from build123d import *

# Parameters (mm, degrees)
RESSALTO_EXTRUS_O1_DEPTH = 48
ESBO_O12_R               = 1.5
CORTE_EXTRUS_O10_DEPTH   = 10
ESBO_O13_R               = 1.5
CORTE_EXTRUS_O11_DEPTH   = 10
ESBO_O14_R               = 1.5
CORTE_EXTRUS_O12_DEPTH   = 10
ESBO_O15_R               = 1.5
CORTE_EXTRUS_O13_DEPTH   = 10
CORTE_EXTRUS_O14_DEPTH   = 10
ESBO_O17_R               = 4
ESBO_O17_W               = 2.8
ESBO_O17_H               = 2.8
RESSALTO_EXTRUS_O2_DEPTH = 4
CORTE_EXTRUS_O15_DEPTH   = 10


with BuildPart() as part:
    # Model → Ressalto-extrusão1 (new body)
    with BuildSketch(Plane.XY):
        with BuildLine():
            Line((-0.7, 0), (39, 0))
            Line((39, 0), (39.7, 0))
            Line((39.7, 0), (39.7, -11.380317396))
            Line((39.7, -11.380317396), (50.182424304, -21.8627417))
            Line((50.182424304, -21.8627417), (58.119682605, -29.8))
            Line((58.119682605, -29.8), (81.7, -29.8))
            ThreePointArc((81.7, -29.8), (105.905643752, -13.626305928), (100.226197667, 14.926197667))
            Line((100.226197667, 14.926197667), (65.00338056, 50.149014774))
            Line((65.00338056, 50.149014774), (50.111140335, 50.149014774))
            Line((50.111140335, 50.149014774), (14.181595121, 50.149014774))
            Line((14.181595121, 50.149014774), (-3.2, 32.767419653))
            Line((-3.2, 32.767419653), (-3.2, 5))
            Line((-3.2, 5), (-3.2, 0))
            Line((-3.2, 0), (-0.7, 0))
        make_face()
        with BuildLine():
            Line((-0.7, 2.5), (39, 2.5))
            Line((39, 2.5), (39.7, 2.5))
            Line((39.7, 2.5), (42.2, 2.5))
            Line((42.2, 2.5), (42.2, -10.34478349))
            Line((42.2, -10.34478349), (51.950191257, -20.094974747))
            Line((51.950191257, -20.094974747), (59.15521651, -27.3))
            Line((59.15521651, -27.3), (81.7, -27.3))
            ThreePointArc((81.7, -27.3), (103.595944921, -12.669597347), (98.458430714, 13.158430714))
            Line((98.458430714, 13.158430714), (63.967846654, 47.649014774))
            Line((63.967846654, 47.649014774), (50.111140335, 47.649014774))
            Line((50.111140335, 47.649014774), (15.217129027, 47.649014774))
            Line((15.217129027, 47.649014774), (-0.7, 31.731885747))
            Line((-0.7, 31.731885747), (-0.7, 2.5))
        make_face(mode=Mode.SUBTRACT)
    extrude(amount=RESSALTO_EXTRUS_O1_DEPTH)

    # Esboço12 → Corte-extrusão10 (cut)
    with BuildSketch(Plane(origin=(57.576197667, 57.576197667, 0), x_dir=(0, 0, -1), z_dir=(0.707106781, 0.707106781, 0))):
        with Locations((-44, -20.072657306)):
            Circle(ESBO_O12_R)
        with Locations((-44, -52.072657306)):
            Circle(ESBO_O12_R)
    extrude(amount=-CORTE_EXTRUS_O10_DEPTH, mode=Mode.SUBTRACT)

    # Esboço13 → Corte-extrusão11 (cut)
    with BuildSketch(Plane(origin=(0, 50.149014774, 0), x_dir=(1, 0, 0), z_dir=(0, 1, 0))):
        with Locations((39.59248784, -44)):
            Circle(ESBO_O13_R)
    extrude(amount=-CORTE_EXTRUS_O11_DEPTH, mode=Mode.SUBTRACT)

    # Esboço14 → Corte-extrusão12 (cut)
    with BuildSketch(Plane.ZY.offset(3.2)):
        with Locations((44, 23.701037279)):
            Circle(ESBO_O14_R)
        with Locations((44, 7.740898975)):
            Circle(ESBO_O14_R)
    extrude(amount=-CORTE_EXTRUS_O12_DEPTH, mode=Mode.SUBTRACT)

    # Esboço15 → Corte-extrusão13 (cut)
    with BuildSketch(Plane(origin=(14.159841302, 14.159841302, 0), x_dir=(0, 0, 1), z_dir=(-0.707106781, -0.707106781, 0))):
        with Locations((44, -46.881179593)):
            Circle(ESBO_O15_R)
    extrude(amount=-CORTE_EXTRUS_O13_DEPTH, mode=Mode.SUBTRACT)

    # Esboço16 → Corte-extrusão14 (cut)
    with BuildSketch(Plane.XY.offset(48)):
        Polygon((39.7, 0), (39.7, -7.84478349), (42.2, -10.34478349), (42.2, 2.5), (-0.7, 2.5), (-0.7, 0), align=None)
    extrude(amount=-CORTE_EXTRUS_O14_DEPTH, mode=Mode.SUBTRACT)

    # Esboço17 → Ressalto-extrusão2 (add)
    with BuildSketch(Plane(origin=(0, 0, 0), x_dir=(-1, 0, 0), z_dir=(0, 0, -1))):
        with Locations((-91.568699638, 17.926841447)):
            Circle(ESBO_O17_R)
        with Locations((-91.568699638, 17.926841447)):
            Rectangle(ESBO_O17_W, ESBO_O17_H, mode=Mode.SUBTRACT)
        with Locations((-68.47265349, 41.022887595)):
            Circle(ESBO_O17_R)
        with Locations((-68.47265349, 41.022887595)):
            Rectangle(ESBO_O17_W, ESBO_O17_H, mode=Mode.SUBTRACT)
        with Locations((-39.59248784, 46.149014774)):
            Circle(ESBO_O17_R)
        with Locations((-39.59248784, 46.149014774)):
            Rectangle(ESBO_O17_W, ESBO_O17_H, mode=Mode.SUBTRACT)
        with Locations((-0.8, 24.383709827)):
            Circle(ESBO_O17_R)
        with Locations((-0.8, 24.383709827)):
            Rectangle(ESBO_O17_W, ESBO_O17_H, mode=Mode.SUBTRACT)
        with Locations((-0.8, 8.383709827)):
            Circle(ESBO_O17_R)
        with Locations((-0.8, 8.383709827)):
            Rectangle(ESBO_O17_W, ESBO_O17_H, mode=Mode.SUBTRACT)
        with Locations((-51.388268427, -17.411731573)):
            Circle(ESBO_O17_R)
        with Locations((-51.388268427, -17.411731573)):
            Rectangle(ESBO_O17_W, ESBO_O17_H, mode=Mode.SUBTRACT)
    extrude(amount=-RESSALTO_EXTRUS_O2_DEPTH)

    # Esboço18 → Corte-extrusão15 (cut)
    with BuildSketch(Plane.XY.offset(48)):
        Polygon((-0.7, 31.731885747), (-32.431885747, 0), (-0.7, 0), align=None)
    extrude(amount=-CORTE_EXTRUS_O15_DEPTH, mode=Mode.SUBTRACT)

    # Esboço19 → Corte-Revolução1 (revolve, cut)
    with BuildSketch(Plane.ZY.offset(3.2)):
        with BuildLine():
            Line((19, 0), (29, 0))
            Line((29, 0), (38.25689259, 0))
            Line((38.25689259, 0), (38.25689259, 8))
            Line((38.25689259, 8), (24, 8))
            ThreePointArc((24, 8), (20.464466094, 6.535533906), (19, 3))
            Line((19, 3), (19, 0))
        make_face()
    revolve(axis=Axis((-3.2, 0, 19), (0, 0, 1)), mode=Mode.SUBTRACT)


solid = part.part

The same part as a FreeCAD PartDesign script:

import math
import FreeCAD as App
import Part
import Sketcher
Q = App.Units.Quantity

doc = App.newDocument("Part")
body = doc.addObject("PartDesign::Body", "Body")

sketch1 = doc.addObject("Sketcher::SketchObject", "Sketch")
body.addObject(sketch1)
sketch1.AttachmentSupport = (doc.XY_Plane, [""])
sketch1.MapMode = "FlatFace"
sketch1.addGeometry([
    Part.LineSegment(App.Vector(40, 0, 0), App.Vector(40, -11, 0)),
    Part.LineSegment(App.Vector(40, -11, 0), App.Vector(50, -22, 0)),
    Part.LineSegment(App.Vector(50, -22, 0), App.Vector(58, -30, 0)),
    Part.LineSegment(App.Vector(58, -30, 0), App.Vector(82, -30, 0)),
    Part.ArcOfCircle(Part.Circle(App.Vector(82, -4, 0), App.Vector(0, 0, 1), 26), math.radians(-90), math.radians(45)),
    Part.LineSegment(App.Vector(100, 15, 0), App.Vector(65, 50, 0)),
    Part.LineSegment(App.Vector(65, 50, 0), App.Vector(14, 50, 0)),
    Part.LineSegment(App.Vector(14, 50, 0), App.Vector(-3, 33, 0)),
    Part.LineSegment(App.Vector(-3, 33, 0), App.Vector(-3, 0, 0)),
    Part.LineSegment(App.Vector(-3, 0, 0), App.Vector(40, 0, 0)),
    Part.LineSegment(App.Vector(42, 2, 0), App.Vector(-1, 2, 0)),
    Part.LineSegment(App.Vector(-1, 2, 0), App.Vector(-1, 32, 0)),
    Part.LineSegment(App.Vector(-1, 32, 0), App.Vector(15, 48, 0)),
    Part.LineSegment(App.Vector(15, 48, 0), App.Vector(64, 48, 0)),
    Part.LineSegment(App.Vector(64, 48, 0), App.Vector(98, 13, 0)),
    Part.ArcOfCircle(Part.Circle(App.Vector(82, -4, 0), App.Vector(0, 0, 1), 24), math.radians(-90), math.radians(45)),
    Part.LineSegment(App.Vector(82, -27, 0), App.Vector(59, -27, 0)),
    Part.LineSegment(App.Vector(59, -27, 0), App.Vector(42, -10, 0)),
    Part.LineSegment(App.Vector(42, -10, 0), App.Vector(42, 2, 0)),
], False)
sketch1.addConstraint([
    Sketcher.Constraint("Coincident", 0, 2, 1, 1),
    Sketcher.Constraint("Coincident", 1, 2, 2, 1),
    Sketcher.Constraint("Coincident", 2, 2, 3, 1),
    Sketcher.Constraint("Tangent", 3, 2, 4, 1),
    Sketcher.Constraint("Tangent", 4, 2, 5, 1),
    Sketcher.Constraint("Coincident", 5, 2, 6, 1),
    Sketcher.Constraint("Coincident", 6, 2, 7, 1),
    Sketcher.Constraint("Coincident", 7, 2, 8, 1),
    Sketcher.Constraint("Coincident", 8, 2, 9, 1),
    Sketcher.Constraint("Coincident", 9, 2, 0, 1),
    Sketcher.Constraint("Coincident", 10, 2, 11, 1),
    Sketcher.Constraint("Coincident", 11, 2, 12, 1),
    Sketcher.Constraint("Coincident", 12, 2, 13, 1),
    Sketcher.Constraint("Coincident", 13, 2, 14, 1),
    Sketcher.Constraint("Tangent", 14, 2, 15, 2),
    Sketcher.Constraint("Tangent", 15, 1, 16, 1),
    Sketcher.Constraint("Coincident", 16, 2, 17, 1),
    Sketcher.Constraint("Coincident", 17, 2, 18, 1),
    Sketcher.Constraint("Coincident", 18, 2, 10, 1),
    Sketcher.Constraint("Vertical", 0),
    Sketcher.Constraint("Horizontal", 3),
    Sketcher.Constraint("Horizontal", 6),
    Sketcher.Constraint("Vertical", 8),
    Sketcher.Constraint("Horizontal", 9),
    Sketcher.Constraint("Horizontal", 10),
    Sketcher.Constraint("Vertical", 11),
    Sketcher.Constraint("Horizontal", 13),
    Sketcher.Constraint("Horizontal", 16),
    Sketcher.Constraint("Vertical", 18),
    Sketcher.Constraint("Coincident", 15, 3, 4, 3),
    Sketcher.Constraint("PointOnObject", 8, 2, -1),
    Sketcher.Constraint("Parallel", 1, 2),
    Sketcher.Constraint("Parallel", 2, 5),
    Sketcher.Constraint("Perpendicular", 5, 7),
    Sketcher.Constraint("Parallel", 7, 12),
    Sketcher.Constraint("Perpendicular", 12, 14),
    Sketcher.Constraint("Parallel", 14, 17),
    Sketcher.Constraint("Equal", 9, 10),
    Sketcher.Constraint("Radius", 4, Q("26.2 mm")),
    Sketcher.Constraint("Radius", 15, Q("23.7 mm")),
    Sketcher.Constraint("Angle", 1, Q("-45 deg")),
    Sketcher.Constraint("DistanceX", 9, 1, 9, 2, Q("42.9 mm")),
    Sketcher.Constraint("DistanceX", 0, 2, 4, 3, Q("42 mm")),
    Sketcher.Constraint("DistanceX", -1, 1, 4, 3, Q("81.7 mm")),
    Sketcher.Constraint("DistanceY", 4, 3, -1, 1, Q("3.6 mm")),
    Sketcher.Constraint("DistanceX", 10, 2, -1, 1, Q("0.7 mm")),
    Sketcher.Constraint("DistanceY", -1, 1, 10, 2, Q("2.5 mm")),
    Sketcher.Constraint("DistanceY", 12, 2, 6, 2, Q("2.5 mm")),
    Sketcher.Constraint("DistanceY", 8, 2, 8, 1, Q("32.76742 mm")),
    Sketcher.Constraint("Distance", 2, Q("11.224978 mm")),
    Sketcher.Constraint("Distance", 12, Q("22.51022 mm")),
    Sketcher.Constraint("Distance", 14, Q("48.777052 mm")),
    Sketcher.Constraint("DistanceX", 3, 1, 3, 2, Q("23.580317 mm")),
    Sketcher.Constraint("DistanceX", 16, 2, 16, 1, Q("22.544783 mm")),
])
pad1 = doc.addObject("PartDesign::Pad", "Pad")
body.addObject(pad1)
pad1.Profile = sketch1
pad1.Length = 48

sketch2 = doc.addObject("Sketcher::SketchObject", "Sketch001")
body.addObject(sketch2)
sketch2.Placement = App.Placement(App.Vector(57.576198, 57.576198, 0), App.Rotation(App.Vector(0, 0, -1), App.Vector(-0.707106781, 0.707106781, 0), App.Vector(0.707106781, 0.707106781, 0), "ZXY"))
sketch2.addGeometry([
    Part.Circle(App.Vector(-44, -20.1, 0), App.Vector(0, 0, 1), 1.5),
    Part.Circle(App.Vector(-44, -52.1, 0), App.Vector(0, 0, 1), 1.5),
], False)
sketch2.addConstraint([
    Sketcher.Constraint("Equal", 0, 1),
    Sketcher.Constraint("Vertical", 0, 3, 1, 3),
    Sketcher.Constraint("Diameter", 0, Q("3 mm")),
    Sketcher.Constraint("DistanceX", 0, 3, -1, 1, Q("44 mm")),
    Sketcher.Constraint("DistanceY", 1, 3, 0, 3, Q("32 mm")),
    Sketcher.Constraint("DistanceY", 0, 3, -1, 1, Q("20.072657 mm")),
])
pocket1 = doc.addObject("PartDesign::Pocket", "Pocket")
body.addObject(pocket1)
pocket1.Profile = sketch2
pocket1.Length = 10

sketch3 = doc.addObject("Sketcher::SketchObject", "Sketch002")
body.addObject(sketch3)
sketch3.AttachmentSupport = (doc.XZ_Plane, [""])
sketch3.MapMode = "FlatFace"
sketch3.AttachmentOffset = App.Placement(App.Vector(0, 0, -50.149015), App.Rotation())
sketch3.addGeometry(Part.Circle(App.Vector(39.6, 44, 0), App.Vector(0, 0, 1), 1.5), False)
sketch3.addConstraint([
    Sketcher.Constraint("Diameter", 0, Q("3 mm")),
    Sketcher.Constraint("DistanceY", -1, 1, 0, 3, Q("44 mm")),
    Sketcher.Constraint("DistanceX", -1, 1, 0, 3, Q("39.592488 mm")),
])
pocket2 = doc.addObject("PartDesign::Pocket", "Pocket001")
body.addObject(pocket2)
pocket2.Profile = sketch3
pocket2.Length = 10
pocket2.Reversed = True

sketch4 = doc.addObject("Sketcher::SketchObject", "Sketch003")
body.addObject(sketch4)
sketch4.AttachmentSupport = (doc.YZ_Plane, [""])
sketch4.MapMode = "FlatFace"
sketch4.AttachmentOffset = App.Placement(App.Vector(0, 0, -3.2), App.Rotation())
sketch4.addGeometry([
    Part.Circle(App.Vector(23.7, 44, 0), App.Vector(0, 0, 1), 1.5),
    Part.Circle(App.Vector(7.7, 44, 0), App.Vector(0, 0, 1), 1.5),
], False)
sketch4.addConstraint([
    Sketcher.Constraint("Equal", 0, 1),
    Sketcher.Constraint("Horizontal", 0, 3, 1, 3),
    Sketcher.Constraint("Diameter", 0, Q("3 mm")),
    Sketcher.Constraint("DistanceY", -1, 1, 0, 3, Q("44 mm")),
    Sketcher.Constraint("DistanceX", -1, 1, 1, 3, Q("7.740899 mm")),
    Sketcher.Constraint("DistanceX", 1, 3, 0, 3, Q("15.960138 mm")),
])
pocket3 = doc.addObject("PartDesign::Pocket", "Pocket002")
body.addObject(pocket3)
pocket3.Profile = sketch4
pocket3.Length = 10
pocket3.Reversed = True

sketch5 = doc.addObject("Sketcher::SketchObject", "Sketch004")
body.addObject(sketch5)
sketch5.Placement = App.Placement(App.Vector(14.159841, 14.159841, 0), App.Rotation(App.Vector(0, 0, 1), App.Vector(-0.707106781, 0.707106781, 0), App.Vector(-0.707106781, -0.707106781, 0), "ZXY"))
sketch5.addGeometry(Part.Circle(App.Vector(44, -46.9, 0), App.Vector(0, 0, 1), 1.5), False)
sketch5.addConstraint([
    Sketcher.Constraint("Diameter", 0, Q("3 mm")),
    Sketcher.Constraint("DistanceX", -1, 1, 0, 3, Q("44 mm")),
    Sketcher.Constraint("DistanceY", 0, 3, -1, 1, Q("46.88118 mm")),
])
pocket4 = doc.addObject("PartDesign::Pocket", "Pocket003")
body.addObject(pocket4)
pocket4.Profile = sketch5
pocket4.Length = 10

sketch6 = doc.addObject("Sketcher::SketchObject", "Sketch005")
body.addObject(sketch6)
sketch6.AttachmentSupport = (doc.XY_Plane, [""])
sketch6.MapMode = "FlatFace"
sketch6.AttachmentOffset = App.Placement(App.Vector(0, 0, 48), App.Rotation())
sketch6.addGeometry([
    Part.LineSegment(App.Vector(39.7, 0, 0), App.Vector(39.7, -7.8, 0)),
    Part.LineSegment(App.Vector(39.7, -7.8, 0), App.Vector(42.2, -10.3, 0)),
    Part.LineSegment(App.Vector(42.2, -10.3, 0), App.Vector(42.2, 2.5, 0)),
    Part.LineSegment(App.Vector(42.2, 2.5, 0), App.Vector(-0.7, 2.5, 0)),
    Part.LineSegment(App.Vector(-0.7, 2.5, 0), App.Vector(-0.7, 0, 0)),
    Part.LineSegment(App.Vector(-0.7, 0, 0), App.Vector(39.7, 0, 0)),
], False)
sketch6.addConstraint([
    Sketcher.Constraint("Coincident", 0, 2, 1, 1),
    Sketcher.Constraint("Coincident", 1, 2, 2, 1),
    Sketcher.Constraint("Coincident", 2, 2, 3, 1),
    Sketcher.Constraint("Coincident", 3, 2, 4, 1),
    Sketcher.Constraint("Coincident", 4, 2, 5, 1),
    Sketcher.Constraint("Coincident", 5, 2, 0, 1),
    Sketcher.Constraint("Vertical", 0),
    Sketcher.Constraint("Vertical", 2),
    Sketcher.Constraint("Horizontal", 3),
    Sketcher.Constraint("Vertical", 4),
    Sketcher.Constraint("Horizontal", 5),
    Sketcher.Constraint("PointOnObject", 4, 2, -1),
    Sketcher.Constraint("Angle", 1, Q("-45 deg")),
    Sketcher.Constraint("DistanceX", 3, 2, 3, 1, Q("42.9 mm")),
    Sketcher.Constraint("DistanceX", 5, 1, 5, 2, Q("40.4 mm")),
    Sketcher.Constraint("DistanceY", 4, 2, 4, 1, Q("2.5 mm")),
    Sketcher.Constraint("DistanceX", -1, 1, 0, 2, Q("39.7 mm")),
    Sketcher.Constraint("DistanceY", 0, 2, 0, 1, Q("7.844783 mm")),
])
pocket5 = doc.addObject("PartDesign::Pocket", "Pocket004")
body.addObject(pocket5)
pocket5.Profile = sketch6
pocket5.Length = 10

sketch7 = doc.addObject("Sketcher::SketchObject", "Sketch006")
body.addObject(sketch7)
sketch7.AttachmentSupport = (doc.XY_Plane, [""])
sketch7.MapMode = "FlatFace"
sketch7.addGeometry([
    Part.Circle(App.Vector(91.6, 17.9, 0), App.Vector(0, 0, 1), 4),
    Part.LineSegment(App.Vector(90.2, 16.5, 0), App.Vector(93, 16.5, 0)),
    Part.LineSegment(App.Vector(93, 16.5, 0), App.Vector(93, 19.3, 0)),
    Part.LineSegment(App.Vector(93, 19.3, 0), App.Vector(90.2, 19.3, 0)),
    Part.LineSegment(App.Vector(90.2, 19.3, 0), App.Vector(90.2, 16.5, 0)),
    Part.Circle(App.Vector(68.5, 41, 0), App.Vector(0, 0, 1), 4),
    Part.LineSegment(App.Vector(67.1, 39.6, 0), App.Vector(69.9, 39.6, 0)),
    Part.LineSegment(App.Vector(69.9, 39.6, 0), App.Vector(69.9, 42.4, 0)),
    Part.LineSegment(App.Vector(69.9, 42.4, 0), App.Vector(67.1, 42.4, 0)),
    Part.LineSegment(App.Vector(67.1, 42.4, 0), App.Vector(67.1, 39.6, 0)),
    Part.Circle(App.Vector(39.6, 46.1, 0), App.Vector(0, 0, 1), 4),
    Part.LineSegment(App.Vector(38.2, 44.7, 0), App.Vector(41, 44.7, 0)),
    Part.LineSegment(App.Vector(41, 44.7, 0), App.Vector(41, 47.5, 0)),
    Part.LineSegment(App.Vector(41, 47.5, 0), App.Vector(38.2, 47.5, 0)),
    Part.LineSegment(App.Vector(38.2, 47.5, 0), App.Vector(38.2, 44.7, 0)),
    Part.Circle(App.Vector(0.8, 24.4, 0), App.Vector(0, 0, 1), 4),
    Part.LineSegment(App.Vector(-0.6, 23, 0), App.Vector(2.2, 23, 0)),
    Part.LineSegment(App.Vector(2.2, 23, 0), App.Vector(2.2, 25.8, 0)),
    Part.LineSegment(App.Vector(2.2, 25.8, 0), App.Vector(-0.6, 25.8, 0)),
    Part.LineSegment(App.Vector(-0.6, 25.8, 0), App.Vector(-0.6, 23, 0)),
    Part.Circle(App.Vector(0.8, 8.4, 0), App.Vector(0, 0, 1), 4),
    Part.LineSegment(App.Vector(-0.6, 7, 0), App.Vector(2.2, 7, 0)),
    Part.LineSegment(App.Vector(2.2, 7, 0), App.Vector(2.2, 9.8, 0)),
    Part.LineSegment(App.Vector(2.2, 9.8, 0), App.Vector(-0.6, 9.8, 0)),
    Part.LineSegment(App.Vector(-0.6, 9.8, 0), App.Vector(-0.6, 7, 0)),
    Part.Circle(App.Vector(51.4, -17.4, 0), App.Vector(0, 0, 1), 4),
    Part.LineSegment(App.Vector(50, -18.8, 0), App.Vector(52.8, -18.8, 0)),
    Part.LineSegment(App.Vector(52.8, -18.8, 0), App.Vector(52.8, -16, 0)),
    Part.LineSegment(App.Vector(52.8, -16, 0), App.Vector(50, -16, 0)),
    Part.LineSegment(App.Vector(50, -16, 0), App.Vector(50, -18.8, 0)),
], False)
sketch7.addConstraint([
    Sketcher.Constraint("Coincident", 1, 2, 2, 1),
    Sketcher.Constraint("Coincident", 2, 2, 3, 1),
    Sketcher.Constraint("Coincident", 3, 2, 4, 1),
    Sketcher.Constraint("Coincident", 4, 2, 1, 1),
    Sketcher.Constraint("Coincident", 6, 2, 7, 1),
    Sketcher.Constraint("Coincident", 7, 2, 8, 1),
    Sketcher.Constraint("Coincident", 8, 2, 9, 1),
    Sketcher.Constraint("Coincident", 9, 2, 6, 1),
    Sketcher.Constraint("Coincident", 11, 2, 12, 1),
    Sketcher.Constraint("Coincident", 12, 2, 13, 1),
    Sketcher.Constraint("Coincident", 13, 2, 14, 1),
    Sketcher.Constraint("Coincident", 14, 2, 11, 1),
    Sketcher.Constraint("Coincident", 16, 2, 17, 1),
    Sketcher.Constraint("Coincident", 17, 2, 18, 1),
    Sketcher.Constraint("Coincident", 18, 2, 19, 1),
    Sketcher.Constraint("Coincident", 19, 2, 16, 1),
    Sketcher.Constraint("Coincident", 21, 2, 22, 1),
    Sketcher.Constraint("Coincident", 22, 2, 23, 1),
    Sketcher.Constraint("Coincident", 23, 2, 24, 1),
    Sketcher.Constraint("Coincident", 24, 2, 21, 1),
    Sketcher.Constraint("Coincident", 26, 2, 27, 1),
    Sketcher.Constraint("Coincident", 27, 2, 28, 1),
    Sketcher.Constraint("Coincident", 28, 2, 29, 1),
    Sketcher.Constraint("Coincident", 29, 2, 26, 1),
    Sketcher.Constraint("Horizontal", 1),
    Sketcher.Constraint("Vertical", 2),
    Sketcher.Constraint("Horizontal", 3),
    Sketcher.Constraint("Vertical", 4),
    Sketcher.Constraint("Horizontal", 6),
    Sketcher.Constraint("Vertical", 7),
    Sketcher.Constraint("Horizontal", 8),
    Sketcher.Constraint("Vertical", 9),
    Sketcher.Constraint("Horizontal", 11),
    Sketcher.Constraint("Vertical", 12),
    Sketcher.Constraint("Horizontal", 13),
    Sketcher.Constraint("Vertical", 14),
    Sketcher.Constraint("Horizontal", 16),
    Sketcher.Constraint("Vertical", 17),
    Sketcher.Constraint("Horizontal", 18),
    Sketcher.Constraint("Vertical", 19),
    Sketcher.Constraint("Horizontal", 21),
    Sketcher.Constraint("Vertical", 22),
    Sketcher.Constraint("Horizontal", 23),
    Sketcher.Constraint("Vertical", 24),
    Sketcher.Constraint("Horizontal", 26),
    Sketcher.Constraint("Vertical", 27),
    Sketcher.Constraint("Horizontal", 28),
    Sketcher.Constraint("Vertical", 29),
    Sketcher.Constraint("Equal", 0, 5),
    Sketcher.Constraint("Equal", 5, 10),
    Sketcher.Constraint("Equal", 10, 15),
    Sketcher.Constraint("Equal", 15, 20),
    Sketcher.Constraint("Equal", 20, 25),
    Sketcher.Constraint("Vertical", 15, 3, 20, 3),
    Sketcher.Constraint("Vertical", 17, 2, 21, 2),
    Sketcher.Constraint("Vertical", 19, 2, 23, 2),
    Sketcher.Constraint("Equal", 3, 6),
    Sketcher.Constraint("Equal", 8, 11),
    Sketcher.Constraint("Equal", 13, 16),
    Sketcher.Constraint("Equal", 23, 26),
    Sketcher.Constraint("Equal", 28, 2),
    Sketcher.Constraint("Equal", 4, 7),
    Sketcher.Constraint("Equal", 9, 12),
    Sketcher.Constraint("Equal", 14, 17),
    Sketcher.Constraint("Equal", 19, 22),
    Sketcher.Constraint("Equal", 24, 27),
    Sketcher.Constraint("Diameter", 0, Q("8 mm")),
    Sketcher.Constraint("DistanceX", 1, 1, 1, 2, Q("2.8 mm")),
    Sketcher.Constraint("DistanceY", 20, 3, 15, 3, Q("16 mm")),
    Sketcher.Constraint("DistanceY", 21, 2, 16, 2, Q("16 mm")),
    Sketcher.Constraint("DistanceX", -1, 1, 15, 3, Q("0.8 mm")),
    Sketcher.Constraint("DistanceX", -1, 1, 16, 2, Q("2.2 mm")),
    Sketcher.Constraint("DistanceX", 0, 3, 1, 2, Q("1.4 mm")),
    Sketcher.Constraint("DistanceY", 1, 2, 0, 3, Q("1.4 mm")),
    Sketcher.Constraint("DistanceX", 5, 3, 6, 2, Q("1.4 mm")),
    Sketcher.Constraint("DistanceY", 6, 2, 5, 3, Q("1.4 mm")),
    Sketcher.Constraint("DistanceX", 10, 3, 11, 2, Q("1.4 mm")),
    Sketcher.Constraint("DistanceY", 11, 2, 10, 3, Q("1.4 mm")),
    Sketcher.Constraint("DistanceY", 16, 2, 15, 3, Q("1.4 mm")),
    Sketcher.Constraint("DistanceX", 25, 3, 26, 2, Q("1.4 mm")),
    Sketcher.Constraint("DistanceY", 26, 2, 25, 3, Q("1.4 mm")),
    Sketcher.Constraint("DistanceX", -1, 1, 0, 3, Q("91.5687 mm")),
    Sketcher.Constraint("DistanceY", -1, 1, 0, 3, Q("17.926841 mm")),
    Sketcher.Constraint("DistanceY", -1, 1, 15, 3, Q("24.38371 mm")),
    Sketcher.Constraint("DistanceX", -1, 1, 25, 3, Q("51.388268 mm")),
    Sketcher.Constraint("DistanceY", 25, 3, -1, 1, Q("17.411732 mm")),
    Sketcher.Constraint("DistanceX", 10, 3, 0, 3, Q("51.976212 mm")),
    Sketcher.Constraint("DistanceY", 25, 3, 5, 3, Q("58.434619 mm")),
    Sketcher.Constraint("DistanceX", -1, 1, 5, 3, Q("68.472653 mm")),
    Sketcher.Constraint("DistanceY", -1, 1, 10, 3, Q("46.149015 mm")),
])
pad2 = doc.addObject("PartDesign::Pad", "Pad001")
body.addObject(pad2)
pad2.Profile = sketch7
pad2.Length = 4

sketch8 = doc.addObject("Sketcher::SketchObject", "Sketch007")
body.addObject(sketch8)
sketch8.AttachmentSupport = (doc.XY_Plane, [""])
sketch8.MapMode = "FlatFace"
sketch8.AttachmentOffset = App.Placement(App.Vector(0, 0, 48), App.Rotation())
sketch8.addGeometry([
    Part.LineSegment(App.Vector(-1, 32, 0), App.Vector(-32, 0, 0)),
    Part.LineSegment(App.Vector(-32, 0, 0), App.Vector(-1, 0, 0)),
    Part.LineSegment(App.Vector(-1, 0, 0), App.Vector(-1, 32, 0)),
], False)
sketch8.addConstraint([
    Sketcher.Constraint("Coincident", 0, 2, 1, 1),
    Sketcher.Constraint("Coincident", 1, 2, 2, 1),
    Sketcher.Constraint("Coincident", 2, 2, 0, 1),
    Sketcher.Constraint("Horizontal", 1),
    Sketcher.Constraint("Vertical", 2),
    Sketcher.Constraint("PointOnObject", 0, 2, -1),
    Sketcher.Constraint("Equal", 1, 2),
    Sketcher.Constraint("DistanceX", 1, 2, -1, 1, Q("0.7 mm")),
    Sketcher.Constraint("DistanceX", 1, 1, 1, 2, Q("31.731886 mm")),
])
pocket6 = doc.addObject("PartDesign::Pocket", "Pocket005")
body.addObject(pocket6)
pocket6.Profile = sketch8
pocket6.Length = 10

sketch9 = doc.addObject("Sketcher::SketchObject", "Sketch008")
body.addObject(sketch9)
sketch9.AttachmentSupport = (doc.YZ_Plane, [""])
sketch9.MapMode = "FlatFace"
sketch9.AttachmentOffset = App.Placement(App.Vector(0, 0, -3.2), App.Rotation())
sketch9.addGeometry([
    Part.LineSegment(App.Vector(0, 19, 0), App.Vector(0, 38.3, 0)),
    Part.LineSegment(App.Vector(0, 38.3, 0), App.Vector(8, 38.3, 0)),
    Part.LineSegment(App.Vector(8, 38.3, 0), App.Vector(8, 24, 0)),
    Part.ArcOfCircle(Part.Circle(App.Vector(3, 24, 0), App.Vector(0, 0, 1), 5), math.radians(-90), math.radians(0)),
    Part.LineSegment(App.Vector(3, 19, 0), App.Vector(0, 19, 0)),
], False)
sketch9.addConstraint([
    Sketcher.Constraint("Coincident", 0, 2, 1, 1),
    Sketcher.Constraint("Coincident", 1, 2, 2, 1),
    Sketcher.Constraint("Tangent", 2, 2, 3, 2),
    Sketcher.Constraint("Tangent", 3, 1, 4, 1),
    Sketcher.Constraint("Coincident", 4, 2, 0, 1),
    Sketcher.Constraint("Vertical", 0),
    Sketcher.Constraint("Horizontal", 1),
    Sketcher.Constraint("Vertical", 2),
    Sketcher.Constraint("Horizontal", 4),
    Sketcher.Constraint("PointOnObject", 0, 2, -2),
    Sketcher.Constraint("Radius", 3, Q("5 mm")),
    Sketcher.Constraint("DistanceX", 1, 1, 1, 2, Q("8 mm")),
    Sketcher.Constraint("DistanceY", -1, 1, 3, 3, Q("24 mm")),
    Sketcher.Constraint("DistanceY", 0, 1, 0, 2, Q("19.256893 mm")),
])
groove = doc.addObject("PartDesign::Groove", "Groove")
body.addObject(groove)
groove.Profile = sketch9
groove.ReferenceAxis = (sketch9, ["V_Axis"])
groove.Angle = 360

doc.recompute()
